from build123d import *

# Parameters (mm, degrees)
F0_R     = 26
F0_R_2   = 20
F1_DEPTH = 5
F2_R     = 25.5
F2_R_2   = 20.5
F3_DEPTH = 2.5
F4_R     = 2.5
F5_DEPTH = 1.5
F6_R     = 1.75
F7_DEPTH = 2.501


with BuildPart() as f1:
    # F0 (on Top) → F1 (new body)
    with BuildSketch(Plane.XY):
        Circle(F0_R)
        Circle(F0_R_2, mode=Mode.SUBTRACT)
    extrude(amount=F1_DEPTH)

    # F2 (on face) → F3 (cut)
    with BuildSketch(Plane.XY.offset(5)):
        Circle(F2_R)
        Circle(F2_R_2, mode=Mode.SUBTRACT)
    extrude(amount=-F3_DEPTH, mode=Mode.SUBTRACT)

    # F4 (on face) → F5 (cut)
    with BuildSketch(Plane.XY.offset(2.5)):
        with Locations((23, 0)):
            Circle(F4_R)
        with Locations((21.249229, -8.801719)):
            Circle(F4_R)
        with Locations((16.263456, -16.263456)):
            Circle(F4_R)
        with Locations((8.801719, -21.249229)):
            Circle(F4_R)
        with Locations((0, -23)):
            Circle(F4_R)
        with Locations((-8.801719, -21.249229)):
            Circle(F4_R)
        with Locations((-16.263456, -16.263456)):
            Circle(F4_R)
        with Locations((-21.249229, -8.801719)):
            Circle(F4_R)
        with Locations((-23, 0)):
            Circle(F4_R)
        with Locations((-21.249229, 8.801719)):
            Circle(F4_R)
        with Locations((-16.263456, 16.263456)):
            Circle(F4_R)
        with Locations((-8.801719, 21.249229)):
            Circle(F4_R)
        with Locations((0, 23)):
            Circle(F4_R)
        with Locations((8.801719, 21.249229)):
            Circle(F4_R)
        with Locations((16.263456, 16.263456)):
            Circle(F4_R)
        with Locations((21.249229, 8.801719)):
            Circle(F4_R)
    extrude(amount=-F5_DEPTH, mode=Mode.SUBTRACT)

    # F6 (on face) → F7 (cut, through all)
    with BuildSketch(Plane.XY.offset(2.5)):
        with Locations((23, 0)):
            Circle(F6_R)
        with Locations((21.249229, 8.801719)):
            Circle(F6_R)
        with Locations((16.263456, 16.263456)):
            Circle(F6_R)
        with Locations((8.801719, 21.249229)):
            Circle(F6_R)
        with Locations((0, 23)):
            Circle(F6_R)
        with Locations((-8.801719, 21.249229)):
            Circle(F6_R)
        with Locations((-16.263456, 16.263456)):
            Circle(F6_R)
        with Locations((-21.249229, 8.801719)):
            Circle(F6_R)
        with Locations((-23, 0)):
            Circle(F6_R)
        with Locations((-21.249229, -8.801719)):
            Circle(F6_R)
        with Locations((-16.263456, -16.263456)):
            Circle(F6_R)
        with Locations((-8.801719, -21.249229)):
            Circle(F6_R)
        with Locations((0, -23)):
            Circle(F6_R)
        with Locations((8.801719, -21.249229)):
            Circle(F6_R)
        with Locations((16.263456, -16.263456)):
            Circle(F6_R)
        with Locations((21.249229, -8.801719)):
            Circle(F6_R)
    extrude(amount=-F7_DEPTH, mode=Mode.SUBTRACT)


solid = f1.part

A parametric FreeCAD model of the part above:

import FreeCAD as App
import Part
import Sketcher
Q = App.Units.Quantity

doc = App.newDocument("Part")
body = doc.addObject("PartDesign::Body", "Body")

# Sketch on XY plane
sketch1 = body.newObject("Sketcher::SketchObject", "Sketch")
sketch1.AttachmentSupport = (doc.getObject("XY_Plane"), [""])
sketch1.MapMode = "FlatFace"
sketch1.addGeometry([
    Part.Circle(App.Vector(0, 0, 0), App.Vector(0, 0, 1), 26),
    Part.Circle(App.Vector(0, 0, 0), App.Vector(0, 0, 1), 20),
], False)
sketch1.addConstraint([
    Sketcher.Constraint("Coincident", 0, 3, -1, 1),
    Sketcher.Constraint("Coincident", 1, 3, -1, 1),
    Sketcher.Constraint("Diameter", 0, Q("52 mm")),
    Sketcher.Constraint("Diameter", 1, Q("40 mm")),
])
pad1 = body.newObject("PartDesign::Pad", "Pad")
pad1.Profile = sketch1
pad1.Length = 5

# Sketch on XY plane
sketch2 = body.newObject("Sketcher::SketchObject", "Sketch001")
sketch2.AttachmentSupport = (doc.getObject("XY_Plane"), [""])
sketch2.MapMode = "FlatFace"
sketch2.AttachmentOffset = App.Placement(App.Vector(0, 0, 5), App.Rotation())
sketch2.addGeometry([
    Part.Circle(App.Vector(0, 0, 0), App.Vector(0, 0, 1), 25.5),
    Part.Circle(App.Vector(0, 0, 0), App.Vector(0, 0, 1), 20.5),
], False)
sketch2.addConstraint([
    Sketcher.Constraint("Coincident", 0, 3, -1, 1),
    Sketcher.Constraint("Coincident", 1, 3, -1, 1),
    Sketcher.Constraint("Diameter", 0, Q("51 mm")),
    Sketcher.Constraint("Diameter", 1, Q("41 mm")),
])
pocket1 = body.newObject("PartDesign::Pocket", "Pocket")
pocket1.Profile = sketch2
pocket1.Length = 2.5

# Sketch on XY plane
sketch3 = body.newObject("Sketcher::SketchObject", "Sketch002")
sketch3.AttachmentSupport = (doc.getObject("XY_Plane"), [""])
sketch3.MapMode = "FlatFace"
sketch3.AttachmentOffset = App.Placement(App.Vector(0, 0, 2.5), App.Rotation())
sketch3.addGeometry([
    Part.Circle(App.Vector(23, 0, 0), App.Vector(0, 0, 1), 2.5),  # 0
    Part.Circle(App.Vector(21.249229, -8.801719, 0), App.Vector(0, 0, 1), 2.5),  # 1
    Part.Circle(App.Vector(16.263456, -16.263456, 0), App.Vector(0, 0, 1), 2.5),  # 2
    Part.Circle(App.Vector(8.801719, -21.249229, 0), App.Vector(0, 0, 1), 2.5),  # 3
    Part.Circle(App.Vector(0, -23, 0), App.Vector(0, 0, 1), 2.5),  # 4
    Part.Circle(App.Vector(-8.801719, -21.249229, 0), App.Vector(0, 0, 1), 2.5),  # 5
    Part.Circle(App.Vector(-16.263456, -16.263456, 0), App.Vector(0, 0, 1), 2.5),  # 6
    Part.Circle(App.Vector(-21.249229, -8.801719, 0), App.Vector(0, 0, 1), 2.5),  # 7
    Part.Circle(App.Vector(-23, 0, 0), App.Vector(0, 0, 1), 2.5),  # 8
    Part.Circle(App.Vector(-21.249229, 8.801719, 0), App.Vector(0, 0, 1), 2.5),  # 9
    Part.Circle(App.Vector(-16.263456, 16.263456, 0), App.Vector(0, 0, 1), 2.5),  # 10
    Part.Circle(App.Vector(-8.801719, 21.249229, 0), App.Vector(0, 0, 1), 2.5),  # 11
    Part.Circle(App.Vector(0, 23, 0), App.Vector(0, 0, 1), 2.5),  # 12
    Part.Circle(App.Vector(8.801719, 21.249229, 0), App.Vector(0, 0, 1), 2.5),  # 13
    Part.Circle(App.Vector(16.263456, 16.263456, 0), App.Vector(0, 0, 1), 2.5),  # 14
    Part.Circle(App.Vector(21.249229, 8.801719, 0), App.Vector(0, 0, 1), 2.5),  # 15
], False)
sketch3.addConstraint([
    Sketcher.Constraint("Equal", 0, 1),
    Sketcher.Constraint("Equal", 1, 2),
    Sketcher.Constraint("Equal", 2, 3),
    Sketcher.Constraint("Equal", 3, 4),
    Sketcher.Constraint("Equal", 4, 5),
    Sketcher.Constraint("Equal", 5, 6),
    Sketcher.Constraint("Equal", 6, 7),
    Sketcher.Constraint("Equal", 7, 8),
    Sketcher.Constraint("Equal", 8, 9),
    Sketcher.Constraint("Equal", 9, 10),
    Sketcher.Constraint("Equal", 10, 11),
    Sketcher.Constraint("Equal", 11, 12),
    Sketcher.Constraint("Equal", 12, 13),
    Sketcher.Constraint("Equal", 13, 14),
    Sketcher.Constraint("Equal", 14, 15),
    Sketcher.Constraint("Symmetric", 0, 3, 8, 3, -1, 1),
    Sketcher.Constraint("Symmetric", 1, 3, 9, 3, -1, 1),
    Sketcher.Constraint("Symmetric", 2, 3, 10, 3, -1, 1),
    Sketcher.Constraint("Symmetric", 3, 3, 11, 3, -1, 1),
    Sketcher.Constraint("Symmetric", 4, 3, 12, 3, -1, 1),
    Sketcher.Constraint("Symmetric", 5, 3, 13, 3, -1, 1),
    Sketcher.Constraint("Symmetric", 6, 3, 14, 3, -1, 1),
    Sketcher.Constraint("Symmetric", 7, 3, 15, 3, -1, 1),
    Sketcher.Constraint("Symmetric", 3, 3, 5, 3, -2),
    Sketcher.Constraint("Symmetric", 2, 3, 6, 3, -2),
    Sketcher.Constraint("Symmetric", 1, 3, 7, 3, -2),
    Sketcher.Constraint("PointOnObject", 0, 3, -1),
    Sketcher.Constraint("PointOnObject", 4, 3, -2),
    Sketcher.Constraint("Diameter", 0, Q("5 mm")),
    Sketcher.Constraint("DistanceX", -1, 1, 0, 3, Q("23 mm")),
    Sketcher.Constraint("DistanceY", 4, 3, -1, 1, Q("23 mm")),
    Sketcher.Constraint("DistanceX", -1, 1, 1, 3, Q("21.249229 mm")),
    Sketcher.Constraint("DistanceY", 1, 3, -1, 1, Q("8.801719 mm")),
    Sketcher.Constraint("DistanceX", -1, 1, 3, 3, Q("8.801719 mm")),
    Sketcher.Constraint("DistanceY", 3, 3, -1, 1, Q("21.249229 mm")),
    Sketcher.Constraint("DistanceX", -1, 1, 2, 3, Q("16.263456 mm")),
    Sketcher.Constraint("DistanceY", 2, 3, -1, 1, Q("16.263456 mm")),
])
pocket2 = body.newObject("PartDesign::Pocket", "Pocket001")
pocket2.Profile = sketch3
pocket2.Length = 1.5

# Sketch on XY plane
sketch4 = body.newObject("Sketcher::SketchObject", "Sketch003")
sketch4.AttachmentSupport = (doc.getObject("XY_Plane"), [""])
sketch4.MapMode = "FlatFace"
sketch4.AttachmentOffset = App.Placement(App.Vector(0, 0, 2.5), App.Rotation())
sketch4.addGeometry([
    Part.Circle(App.Vector(23, 0, 0), App.Vector(0, 0, 1), 1.75),  # 0
    Part.Circle(App.Vector(21.249229, 8.801719, 0), App.Vector(0, 0, 1), 1.75),  # 1
    Part.Circle(App.Vector(16.263456, 16.263456, 0), App.Vector(0, 0, 1), 1.75),  # 2
    Part.Circle(App.Vector(8.801719, 21.249229, 0), App.Vector(0, 0, 1), 1.75),  # 3
    Part.Circle(App.Vector(0, 23, 0), App.Vector(0, 0, 1), 1.75),  # 4
    Part.Circle(App.Vector(-8.801719, 21.249229, 0), App.Vector(0, 0, 1), 1.75),  # 5
    Part.Circle(App.Vector(-16.263456, 16.263456, 0), App.Vector(0, 0, 1), 1.75),  # 6
    Part.Circle(App.Vector(-21.249229, 8.801719, 0), App.Vector(0, 0, 1), 1.75),  # 7
    Part.Circle(App.Vector(-23, 0, 0), App.Vector(0, 0, 1), 1.75),  # 8
    Part.Circle(App.Vector(-21.249229, -8.801719, 0), App.Vector(0, 0, 1), 1.75),  # 9
    Part.Circle(App.Vector(-16.263456, -16.263456, 0), App.Vector(0, 0, 1), 1.75),  # 10
    Part.Circle(App.Vector(-8.801719, -21.249229, 0), App.Vector(0, 0, 1), 1.75),  # 11
    Part.Circle(App.Vector(0, -23, 0), App.Vector(0, 0, 1), 1.75),  # 12
    Part.Circle(App.Vector(8.801719, -21.249229, 0), App.Vector(0, 0, 1), 1.75),  # 13
    Part.Circle(App.Vector(16.263456, -16.263456, 0), App.Vector(0, 0, 1), 1.75),  # 14
    Part.Circle(App.Vector(21.249229, -8.801719, 0), App.Vector(0, 0, 1), 1.75),  # 15
], False)
sketch4.addConstraint([
    Sketcher.Constraint("Equal", 0, 1),
    Sketcher.Constraint("Equal", 1, 2),
    Sketcher.Constraint("Equal", 2, 3),
    Sketcher.Constraint("Equal", 3, 4),
    Sketcher.Constraint("Equal", 4, 5),
    Sketcher.Constraint("Equal", 5, 6),
    Sketcher.Constraint("Equal", 6, 7),
    Sketcher.Constraint("Equal", 7, 8),
    Sketcher.Constraint("Equal", 8, 9),
    Sketcher.Constraint("Equal", 9, 10),
    Sketcher.Constraint("Equal", 10, 11),
    Sketcher.Constraint("Equal", 11, 12),
    Sketcher.Constraint("Equal", 12, 13),
    Sketcher.Constraint("Equal", 13, 14),
    Sketcher.Constraint("Equal", 14, 15),
    Sketcher.Constraint("Symmetric", 0, 3, 8, 3, -1, 1),
    Sketcher.Constraint("Symmetric", 1, 3, 9, 3, -1, 1),
    Sketcher.Constraint("Symmetric", 2, 3, 10, 3, -1, 1),
    Sketcher.Constraint("Symmetric", 3, 3, 11, 3, -1, 1),
    Sketcher.Constraint("Symmetric", 4, 3, 12, 3, -1, 1),
    Sketcher.Constraint("Symmetric", 5, 3, 13, 3, -1, 1),
    Sketcher.Constraint("Symmetric", 6, 3, 14, 3, -1, 1),
    Sketcher.Constraint("Symmetric", 7, 3, 15, 3, -1, 1),
    Sketcher.Constraint("Symmetric", 3, 3, 5, 3, -2),
    Sketcher.Constraint("Symmetric", 2, 3, 6, 3, -2),
    Sketcher.Constraint("Symmetric", 1, 3, 7, 3, -2),
    Sketcher.Constraint("PointOnObject", 0, 3, -1),
    Sketcher.Constraint("PointOnObject", 4, 3, -2),
    Sketcher.Constraint("Diameter", 0, Q("3.5 mm")),
    Sketcher.Constraint("DistanceX", -1, 1, 0, 3, Q("23 mm")),
    Sketcher.Constraint("DistanceY", -1, 1, 4, 3, Q("23 mm")),
    Sketcher.Constraint("DistanceX", -1, 1, 1, 3, Q("21.249229 mm")),
    Sketcher.Constraint("DistanceY", -1, 1, 1, 3, Q("8.801719 mm")),
    Sketcher.Constraint("DistanceX", -1, 1, 3, 3, Q("8.801719 mm")),
    Sketcher.Constraint("DistanceY", -1, 1, 3, 3, Q("21.249229 mm")),
    Sketcher.Constraint("DistanceX", -1, 1, 2, 3, Q("16.263456 mm")),
    Sketcher.Constraint("DistanceY", -1, 1, 2, 3, Q("16.263456 mm")),
])
pocket3 = body.newObject("PartDesign::Pocket", "Pocket002")
pocket3.Profile = sketch4
pocket3.Type = "ThroughAll"

doc.recompute()
